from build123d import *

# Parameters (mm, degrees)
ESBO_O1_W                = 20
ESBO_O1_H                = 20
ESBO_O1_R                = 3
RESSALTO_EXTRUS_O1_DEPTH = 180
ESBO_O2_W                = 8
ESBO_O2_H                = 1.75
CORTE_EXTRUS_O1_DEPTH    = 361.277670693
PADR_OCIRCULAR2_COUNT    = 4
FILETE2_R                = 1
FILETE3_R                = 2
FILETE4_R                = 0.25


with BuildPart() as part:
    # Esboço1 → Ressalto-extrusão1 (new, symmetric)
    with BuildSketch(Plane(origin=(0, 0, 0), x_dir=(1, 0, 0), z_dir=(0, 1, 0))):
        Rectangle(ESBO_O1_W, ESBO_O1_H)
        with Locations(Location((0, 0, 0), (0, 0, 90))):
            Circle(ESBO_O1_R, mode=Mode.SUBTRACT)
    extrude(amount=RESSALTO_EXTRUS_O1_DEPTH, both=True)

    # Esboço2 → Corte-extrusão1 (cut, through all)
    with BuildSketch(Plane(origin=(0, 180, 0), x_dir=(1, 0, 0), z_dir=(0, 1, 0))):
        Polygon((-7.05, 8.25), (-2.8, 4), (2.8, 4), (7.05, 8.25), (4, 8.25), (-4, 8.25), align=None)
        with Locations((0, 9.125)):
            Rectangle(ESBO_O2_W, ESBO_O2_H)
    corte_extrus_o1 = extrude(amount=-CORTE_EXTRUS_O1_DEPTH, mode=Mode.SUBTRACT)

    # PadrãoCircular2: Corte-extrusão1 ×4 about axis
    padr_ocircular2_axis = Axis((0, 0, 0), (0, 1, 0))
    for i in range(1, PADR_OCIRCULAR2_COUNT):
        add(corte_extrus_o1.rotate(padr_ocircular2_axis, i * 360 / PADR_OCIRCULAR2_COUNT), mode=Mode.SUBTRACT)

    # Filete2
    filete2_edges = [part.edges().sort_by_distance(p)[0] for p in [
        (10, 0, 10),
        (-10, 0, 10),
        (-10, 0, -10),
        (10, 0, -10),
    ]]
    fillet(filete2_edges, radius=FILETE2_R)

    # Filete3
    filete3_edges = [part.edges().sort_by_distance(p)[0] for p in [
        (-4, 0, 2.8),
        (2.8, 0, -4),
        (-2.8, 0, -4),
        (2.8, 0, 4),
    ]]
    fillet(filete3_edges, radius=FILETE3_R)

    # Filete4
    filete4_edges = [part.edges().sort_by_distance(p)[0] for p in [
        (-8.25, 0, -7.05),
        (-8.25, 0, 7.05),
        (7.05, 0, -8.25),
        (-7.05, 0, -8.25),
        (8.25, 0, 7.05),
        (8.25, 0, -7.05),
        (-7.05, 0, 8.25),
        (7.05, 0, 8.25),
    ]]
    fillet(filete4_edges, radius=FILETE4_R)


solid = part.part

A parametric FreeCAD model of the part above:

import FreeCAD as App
import Part
import Sketcher
Q = App.Units.Quantity


def edges_at(feature, points):
    """Names of the edges that pass closest to the given points."""
    edges = feature.Shape.Edges
    near = lambda p: min(range(len(edges)), key=lambda i: edges[i].distToShape(Part.Vertex(*p))[0])
    return sorted({f"Edge{near(p) + 1}" for p in points})


def add_polygon(sketch, points):
    """Adds a closed chain of lines whose ends are joined by coincident constraints."""
    first, n = sketch.GeometryCount, len(points)
    for a, b in zip(points, points[1:] + points[:1]):
        sketch.addGeometry(Part.LineSegment(App.Vector(*a, 0), App.Vector(*b, 0)), False)
    for i in range(n):
        sketch.addConstraint(Sketcher.Constraint("Coincident", first + i, 2, first + (i + 1) % n, 1))

doc = App.newDocument("Part")
body = doc.addObject("PartDesign::Body", "Body")

sketch1 = doc.addObject("Sketcher::SketchObject", "Sketch")
body.addObject(sketch1)
sketch1.AttachmentSupport = (doc.XZ_Plane, [""])
sketch1.MapMode = "FlatFace"
add_polygon(sketch1, [(-10, -10), (-10, 10), (10, 10), (10, -10)])
sketch1.addGeometry(Part.Circle(App.Vector(0, 0, 0), App.Vector(0, 0, 1), 3), False)
sketch1.addConstraint(Sketcher.Constraint("Vertical", 0))
sketch1.addConstraint(Sketcher.Constraint("Horizontal", 1))
sketch1.addConstraint(Sketcher.Constraint("Vertical", 2))
sketch1.addConstraint(Sketcher.Constraint("Horizontal", 3))
sketch1.addConstraint(Sketcher.Constraint("Coincident", 4, 3, -1, 1))
sketch1.addConstraint(Sketcher.Constraint("Symmetric", 0, 2, 2, 2, -1, 1))
sketch1.addConstraint(Sketcher.Constraint("Equal", 3, 0))
sketch1.addConstraint(Sketcher.Constraint("Diameter", 4, Q("6 mm")))
sketch1.addConstraint(Sketcher.Constraint("DistanceX", 1, 1, 1, 2, Q("20 mm")))
pad1 = doc.addObject("PartDesign::Pad", "Pad")
body.addObject(pad1)
pad1.Profile = sketch1
pad1.Length = 360
pad1.Midplane = True

sketch2 = doc.addObject("Sketcher::SketchObject", "Sketch001")
body.addObject(sketch2)
sketch2.AttachmentSupport = (doc.XZ_Plane, [""])
sketch2.MapMode = "FlatFace"
sketch2.AttachmentOffset = App.Placement(App.Vector(0, 0, -180), App.Rotation())
add_polygon(sketch2, [(-7, -8.2), (-2.8, -4), (2.8, -4), (7, -8.2), (4, -8.2), (4, -10), (-4, -10), (-4, -8.2)])
sketch2.addConstraint(Sketcher.Constraint("Horizontal", 1))
sketch2.addConstraint(Sketcher.Constraint("Horizontal", 3))
sketch2.addConstraint(Sketcher.Constraint("Vertical", 4))
sketch2.addConstraint(Sketcher.Constraint("Horizontal", 5))
sketch2.addConstraint(Sketcher.Constraint("Vertical", 6))
sketch2.addConstraint(Sketcher.Constraint("Horizontal", 7))
sketch2.addConstraint(Sketcher.Constraint("Symmetric", 3, 2, 6, 2, -2))
sketch2.addConstraint(Sketcher.Constraint("Perpendicular", 0, 2))
sketch2.addConstraint(Sketcher.Constraint("Equal", 3, 7))
sketch2.addConstraint(Sketcher.Constraint("Equal", 0, 2))
sketch2.addConstraint(Sketcher.Constraint("DistanceX", 5, 2, 5, 1, Q("8 mm")))
sketch2.addConstraint(Sketcher.Constraint("DistanceX", 1, 1, 1, 2, Q("5.6 mm")))
sketch2.addConstraint(Sketcher.Constraint("DistanceY", 0, 2, -1, 1, Q("4 mm")))
sketch2.addConstraint(Sketcher.Constraint("DistanceY", 4, 2, -1, 1, Q("10 mm")))
sketch2.addConstraint(Sketcher.Constraint("DistanceX", 3, 2, 3, 1, Q("3.05 mm")))
pocket1 = doc.addObject("PartDesign::Pocket", "Pocket")
body.addObject(pocket1)
pocket1.Profile = sketch2
pocket1.Type = "ThroughAll"
pocket1.Reversed = True
doc.recompute()

polarpattern = doc.addObject("PartDesign::PolarPattern", "PolarPattern")
body.addObject(polarpattern)
polarpattern.Originals = [pocket1]
polarpattern.Axis = (doc.Y_Axis, [""])
polarpattern.Angle = 360
polarpattern.Occurrences = 4
body.Tip = polarpattern
doc.recompute()

fillet = doc.addObject("PartDesign::Fillet", "Fillet")
body.addObject(fillet)
fillet.Base = (polarpattern, edges_at(polarpattern, [
    (10, 0, 10),
    (-10, 0, 10),
    (-10, 0, -10),
    (10, 0, -10),
]))
fillet.Radius = 1
doc.recompute()

fillet2 = doc.addObject("PartDesign::Fillet", "Fillet001")
body.addObject(fillet2)
fillet2.Base = (fillet, edges_at(fillet, [
    (-4, 0, 2.8),
    (2.8, 0, -4),
    (-2.8, 0, -4),
    (2.8, 0, 4),
]))
fillet2.Radius = 2
doc.recompute()

fillet3 = doc.addObject("PartDesign::Fillet", "Fillet002")
body.addObject(fillet3)
fillet3.Base = (fillet2, edges_at(fillet2, [
    (-8.25, 0, -7.05),
    (-8.25, 0, 7.05),
    (7.05, 0, -8.25),
    (-7.05, 0, -8.25),
    (8.25, 0, 7.05),
    (8.25, 0, -7.05),
    (-7.05, 0, 8.25),
    (7.05, 0, 8.25),
]))
fillet3.Radius = 0.25

doc.recompute()
